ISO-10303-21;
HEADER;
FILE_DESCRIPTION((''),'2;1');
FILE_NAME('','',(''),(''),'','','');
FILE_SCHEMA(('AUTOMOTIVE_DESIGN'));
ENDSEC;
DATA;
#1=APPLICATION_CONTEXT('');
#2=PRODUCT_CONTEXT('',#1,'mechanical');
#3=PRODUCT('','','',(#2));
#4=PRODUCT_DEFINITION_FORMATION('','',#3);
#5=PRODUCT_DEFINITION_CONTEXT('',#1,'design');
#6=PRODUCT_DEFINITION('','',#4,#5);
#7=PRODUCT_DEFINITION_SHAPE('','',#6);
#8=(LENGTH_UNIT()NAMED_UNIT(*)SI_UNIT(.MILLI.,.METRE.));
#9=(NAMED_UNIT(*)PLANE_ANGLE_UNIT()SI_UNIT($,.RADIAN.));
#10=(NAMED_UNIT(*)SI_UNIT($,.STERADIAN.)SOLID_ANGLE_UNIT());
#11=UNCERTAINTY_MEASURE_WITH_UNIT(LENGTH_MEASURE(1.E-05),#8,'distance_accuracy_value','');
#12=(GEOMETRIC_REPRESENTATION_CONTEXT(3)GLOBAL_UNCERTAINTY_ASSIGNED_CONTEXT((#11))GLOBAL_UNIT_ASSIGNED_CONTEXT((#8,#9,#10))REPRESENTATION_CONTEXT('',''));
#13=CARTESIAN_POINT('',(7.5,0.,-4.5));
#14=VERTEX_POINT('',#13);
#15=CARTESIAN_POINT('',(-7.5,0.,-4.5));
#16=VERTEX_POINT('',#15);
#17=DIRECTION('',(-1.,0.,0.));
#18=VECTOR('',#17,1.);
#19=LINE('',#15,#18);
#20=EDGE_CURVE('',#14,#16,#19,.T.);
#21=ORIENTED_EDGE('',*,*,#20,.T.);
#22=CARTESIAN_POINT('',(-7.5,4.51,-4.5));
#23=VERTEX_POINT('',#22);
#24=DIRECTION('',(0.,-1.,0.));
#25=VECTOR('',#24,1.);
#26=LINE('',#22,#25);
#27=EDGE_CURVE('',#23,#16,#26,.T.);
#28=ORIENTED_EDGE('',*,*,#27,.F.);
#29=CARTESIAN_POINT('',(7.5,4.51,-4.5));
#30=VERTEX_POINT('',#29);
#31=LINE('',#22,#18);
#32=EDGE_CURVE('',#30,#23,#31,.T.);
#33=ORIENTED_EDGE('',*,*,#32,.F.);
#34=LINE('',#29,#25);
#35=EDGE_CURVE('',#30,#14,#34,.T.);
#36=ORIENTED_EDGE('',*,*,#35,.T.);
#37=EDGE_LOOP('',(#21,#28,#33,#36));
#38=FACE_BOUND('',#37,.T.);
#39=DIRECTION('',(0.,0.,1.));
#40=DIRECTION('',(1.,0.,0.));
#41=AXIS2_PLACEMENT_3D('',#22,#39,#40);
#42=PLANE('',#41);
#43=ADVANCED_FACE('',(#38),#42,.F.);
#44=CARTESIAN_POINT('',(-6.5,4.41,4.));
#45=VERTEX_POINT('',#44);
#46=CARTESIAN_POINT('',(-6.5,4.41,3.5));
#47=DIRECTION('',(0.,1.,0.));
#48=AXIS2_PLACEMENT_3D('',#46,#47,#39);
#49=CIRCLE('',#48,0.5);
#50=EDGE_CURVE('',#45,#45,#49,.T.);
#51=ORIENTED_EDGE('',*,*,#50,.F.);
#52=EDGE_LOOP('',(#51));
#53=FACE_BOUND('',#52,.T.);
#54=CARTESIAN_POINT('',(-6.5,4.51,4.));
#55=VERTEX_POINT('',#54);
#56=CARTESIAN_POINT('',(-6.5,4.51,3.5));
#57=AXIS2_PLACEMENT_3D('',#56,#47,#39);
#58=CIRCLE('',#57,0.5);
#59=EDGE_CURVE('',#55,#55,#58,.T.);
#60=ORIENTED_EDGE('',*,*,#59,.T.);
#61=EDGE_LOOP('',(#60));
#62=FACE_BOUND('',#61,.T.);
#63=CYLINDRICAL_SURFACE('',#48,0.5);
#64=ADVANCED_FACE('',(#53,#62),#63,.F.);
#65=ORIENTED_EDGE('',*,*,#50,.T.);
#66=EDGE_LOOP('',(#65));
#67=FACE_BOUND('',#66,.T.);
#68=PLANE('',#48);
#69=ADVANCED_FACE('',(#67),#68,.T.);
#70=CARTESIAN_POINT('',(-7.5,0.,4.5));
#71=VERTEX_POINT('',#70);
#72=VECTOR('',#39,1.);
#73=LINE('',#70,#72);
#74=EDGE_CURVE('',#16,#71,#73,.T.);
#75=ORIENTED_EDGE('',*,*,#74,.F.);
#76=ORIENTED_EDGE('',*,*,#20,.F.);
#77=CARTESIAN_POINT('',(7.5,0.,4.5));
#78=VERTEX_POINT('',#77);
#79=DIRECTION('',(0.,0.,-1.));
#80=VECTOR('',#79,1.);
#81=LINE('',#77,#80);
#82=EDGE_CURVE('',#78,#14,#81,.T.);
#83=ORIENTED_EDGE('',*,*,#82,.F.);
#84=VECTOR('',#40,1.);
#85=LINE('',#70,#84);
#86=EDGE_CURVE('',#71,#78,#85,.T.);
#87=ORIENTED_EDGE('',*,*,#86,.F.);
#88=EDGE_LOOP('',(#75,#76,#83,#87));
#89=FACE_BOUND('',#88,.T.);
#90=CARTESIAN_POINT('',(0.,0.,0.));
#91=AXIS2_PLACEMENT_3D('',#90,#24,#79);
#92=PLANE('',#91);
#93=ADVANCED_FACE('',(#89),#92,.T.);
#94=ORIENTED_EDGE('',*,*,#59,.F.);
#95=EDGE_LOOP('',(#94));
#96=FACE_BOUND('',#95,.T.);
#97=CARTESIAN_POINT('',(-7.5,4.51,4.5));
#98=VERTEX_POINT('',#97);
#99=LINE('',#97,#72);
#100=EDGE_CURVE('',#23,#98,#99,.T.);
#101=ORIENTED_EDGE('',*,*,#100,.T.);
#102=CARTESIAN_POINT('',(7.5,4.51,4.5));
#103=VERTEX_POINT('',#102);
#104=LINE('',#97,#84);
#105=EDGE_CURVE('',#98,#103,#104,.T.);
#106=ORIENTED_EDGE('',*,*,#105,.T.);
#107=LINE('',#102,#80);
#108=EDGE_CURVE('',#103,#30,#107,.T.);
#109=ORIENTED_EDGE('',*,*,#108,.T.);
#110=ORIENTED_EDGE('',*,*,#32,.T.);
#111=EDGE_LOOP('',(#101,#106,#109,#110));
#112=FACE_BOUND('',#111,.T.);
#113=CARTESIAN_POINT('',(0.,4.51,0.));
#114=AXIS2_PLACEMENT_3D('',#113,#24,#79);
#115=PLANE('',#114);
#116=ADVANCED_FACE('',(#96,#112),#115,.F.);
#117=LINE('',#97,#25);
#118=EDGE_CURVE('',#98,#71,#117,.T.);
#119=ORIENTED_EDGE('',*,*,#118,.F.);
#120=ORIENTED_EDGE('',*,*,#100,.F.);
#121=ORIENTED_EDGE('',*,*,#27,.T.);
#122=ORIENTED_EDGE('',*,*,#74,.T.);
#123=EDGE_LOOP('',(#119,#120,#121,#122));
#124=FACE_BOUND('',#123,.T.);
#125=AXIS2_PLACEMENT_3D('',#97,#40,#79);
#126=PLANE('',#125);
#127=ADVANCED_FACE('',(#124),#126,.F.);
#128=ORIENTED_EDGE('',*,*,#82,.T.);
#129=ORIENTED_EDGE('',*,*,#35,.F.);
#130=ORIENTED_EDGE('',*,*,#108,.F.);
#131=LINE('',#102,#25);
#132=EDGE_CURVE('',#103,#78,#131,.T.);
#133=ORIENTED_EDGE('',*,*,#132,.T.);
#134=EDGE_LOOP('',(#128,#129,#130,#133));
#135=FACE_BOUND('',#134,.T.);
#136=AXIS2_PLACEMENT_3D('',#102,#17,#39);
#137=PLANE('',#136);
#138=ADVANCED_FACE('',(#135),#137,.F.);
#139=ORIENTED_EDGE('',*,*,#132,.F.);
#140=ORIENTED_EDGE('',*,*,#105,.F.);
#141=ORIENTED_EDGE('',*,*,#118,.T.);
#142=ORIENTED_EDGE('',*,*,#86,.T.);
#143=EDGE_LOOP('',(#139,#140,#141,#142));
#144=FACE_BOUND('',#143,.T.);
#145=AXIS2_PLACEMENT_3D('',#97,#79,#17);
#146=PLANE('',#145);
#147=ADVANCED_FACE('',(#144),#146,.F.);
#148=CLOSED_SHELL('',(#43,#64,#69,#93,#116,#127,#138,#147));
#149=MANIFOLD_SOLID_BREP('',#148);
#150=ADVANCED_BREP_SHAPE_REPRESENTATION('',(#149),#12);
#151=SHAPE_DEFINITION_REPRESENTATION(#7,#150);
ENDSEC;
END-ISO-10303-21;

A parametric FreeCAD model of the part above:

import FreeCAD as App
import Part
import Sketcher
from FreeCAD import Vector

doc = App.newDocument("Part")
body = doc.addObject("PartDesign::Body", "Body")

# Sketch on XZ plane
sketch1 = body.newObject("Sketcher::SketchObject", "Sketch")
sketch1.AttachmentSupport = (doc.getObject("XZ_Plane"), [""])
sketch1.MapMode = "FlatFace"
sketch1.addGeometry([
    Part.LineSegment(Vector(-8, -4, 0), Vector(-8, 4, 0)),
    Part.LineSegment(Vector(-8, 4, 0), Vector(8, 4, 0)),
    Part.LineSegment(Vector(8, 4, 0), Vector(8, -4, 0)),
    Part.LineSegment(Vector(8, -4, 0), Vector(-8, -4, 0)),
], False)
sketch1.addConstraint([
    Sketcher.Constraint("Coincident", 0, 2, 1, 1),
    Sketcher.Constraint("Coincident", 1, 2, 2, 1),
    Sketcher.Constraint("Coincident", 2, 2, 3, 1),
    Sketcher.Constraint("Coincident", 3, 2, 0, 1),
    Sketcher.Constraint("Vertical", 0),
    Sketcher.Constraint("Horizontal", 1),
    Sketcher.Constraint("Vertical", 2),
    Sketcher.Constraint("Horizontal", 3),
    Sketcher.Constraint("Symmetric", 0, 2, 2, 2, -1, 1),
    Sketcher.Constraint("DistanceX", 1, 1, 1, 2, 15.0),
    Sketcher.Constraint("DistanceY", 0, 1, 0, 2, 9.0),
])
pad1 = body.newObject("PartDesign::Pad", "Pad")
pad1.Profile = sketch1
pad1.Length = 4.51
pad1.Reversed = True

# Sketch on XZ plane
sketch2 = body.newObject("Sketcher::SketchObject", "Sketch001")
sketch2.AttachmentSupport = (doc.getObject("XZ_Plane"), [""])
sketch2.MapMode = "FlatFace"
sketch2.AttachmentOffset = App.Placement(Vector(0, 0, -4.51), App.Rotation())
sketch2.addGeometry(Part.Circle(Vector(-6.5, 3.5, 0), Vector(0, 0, 1), 0.5), False)
sketch2.addConstraint([
    Sketcher.Constraint("Diameter", 0, 1.0),
    Sketcher.Constraint("DistanceX", 0, 3, -1, 1, 6.5),
    Sketcher.Constraint("DistanceY", -1, 1, 0, 3, 3.5),
])
pocket1 = body.newObject("PartDesign::Pocket", "Pocket")
pocket1.Profile = sketch2
pocket1.Length = 0.1
pocket1.Reversed = True

doc.recompute()
